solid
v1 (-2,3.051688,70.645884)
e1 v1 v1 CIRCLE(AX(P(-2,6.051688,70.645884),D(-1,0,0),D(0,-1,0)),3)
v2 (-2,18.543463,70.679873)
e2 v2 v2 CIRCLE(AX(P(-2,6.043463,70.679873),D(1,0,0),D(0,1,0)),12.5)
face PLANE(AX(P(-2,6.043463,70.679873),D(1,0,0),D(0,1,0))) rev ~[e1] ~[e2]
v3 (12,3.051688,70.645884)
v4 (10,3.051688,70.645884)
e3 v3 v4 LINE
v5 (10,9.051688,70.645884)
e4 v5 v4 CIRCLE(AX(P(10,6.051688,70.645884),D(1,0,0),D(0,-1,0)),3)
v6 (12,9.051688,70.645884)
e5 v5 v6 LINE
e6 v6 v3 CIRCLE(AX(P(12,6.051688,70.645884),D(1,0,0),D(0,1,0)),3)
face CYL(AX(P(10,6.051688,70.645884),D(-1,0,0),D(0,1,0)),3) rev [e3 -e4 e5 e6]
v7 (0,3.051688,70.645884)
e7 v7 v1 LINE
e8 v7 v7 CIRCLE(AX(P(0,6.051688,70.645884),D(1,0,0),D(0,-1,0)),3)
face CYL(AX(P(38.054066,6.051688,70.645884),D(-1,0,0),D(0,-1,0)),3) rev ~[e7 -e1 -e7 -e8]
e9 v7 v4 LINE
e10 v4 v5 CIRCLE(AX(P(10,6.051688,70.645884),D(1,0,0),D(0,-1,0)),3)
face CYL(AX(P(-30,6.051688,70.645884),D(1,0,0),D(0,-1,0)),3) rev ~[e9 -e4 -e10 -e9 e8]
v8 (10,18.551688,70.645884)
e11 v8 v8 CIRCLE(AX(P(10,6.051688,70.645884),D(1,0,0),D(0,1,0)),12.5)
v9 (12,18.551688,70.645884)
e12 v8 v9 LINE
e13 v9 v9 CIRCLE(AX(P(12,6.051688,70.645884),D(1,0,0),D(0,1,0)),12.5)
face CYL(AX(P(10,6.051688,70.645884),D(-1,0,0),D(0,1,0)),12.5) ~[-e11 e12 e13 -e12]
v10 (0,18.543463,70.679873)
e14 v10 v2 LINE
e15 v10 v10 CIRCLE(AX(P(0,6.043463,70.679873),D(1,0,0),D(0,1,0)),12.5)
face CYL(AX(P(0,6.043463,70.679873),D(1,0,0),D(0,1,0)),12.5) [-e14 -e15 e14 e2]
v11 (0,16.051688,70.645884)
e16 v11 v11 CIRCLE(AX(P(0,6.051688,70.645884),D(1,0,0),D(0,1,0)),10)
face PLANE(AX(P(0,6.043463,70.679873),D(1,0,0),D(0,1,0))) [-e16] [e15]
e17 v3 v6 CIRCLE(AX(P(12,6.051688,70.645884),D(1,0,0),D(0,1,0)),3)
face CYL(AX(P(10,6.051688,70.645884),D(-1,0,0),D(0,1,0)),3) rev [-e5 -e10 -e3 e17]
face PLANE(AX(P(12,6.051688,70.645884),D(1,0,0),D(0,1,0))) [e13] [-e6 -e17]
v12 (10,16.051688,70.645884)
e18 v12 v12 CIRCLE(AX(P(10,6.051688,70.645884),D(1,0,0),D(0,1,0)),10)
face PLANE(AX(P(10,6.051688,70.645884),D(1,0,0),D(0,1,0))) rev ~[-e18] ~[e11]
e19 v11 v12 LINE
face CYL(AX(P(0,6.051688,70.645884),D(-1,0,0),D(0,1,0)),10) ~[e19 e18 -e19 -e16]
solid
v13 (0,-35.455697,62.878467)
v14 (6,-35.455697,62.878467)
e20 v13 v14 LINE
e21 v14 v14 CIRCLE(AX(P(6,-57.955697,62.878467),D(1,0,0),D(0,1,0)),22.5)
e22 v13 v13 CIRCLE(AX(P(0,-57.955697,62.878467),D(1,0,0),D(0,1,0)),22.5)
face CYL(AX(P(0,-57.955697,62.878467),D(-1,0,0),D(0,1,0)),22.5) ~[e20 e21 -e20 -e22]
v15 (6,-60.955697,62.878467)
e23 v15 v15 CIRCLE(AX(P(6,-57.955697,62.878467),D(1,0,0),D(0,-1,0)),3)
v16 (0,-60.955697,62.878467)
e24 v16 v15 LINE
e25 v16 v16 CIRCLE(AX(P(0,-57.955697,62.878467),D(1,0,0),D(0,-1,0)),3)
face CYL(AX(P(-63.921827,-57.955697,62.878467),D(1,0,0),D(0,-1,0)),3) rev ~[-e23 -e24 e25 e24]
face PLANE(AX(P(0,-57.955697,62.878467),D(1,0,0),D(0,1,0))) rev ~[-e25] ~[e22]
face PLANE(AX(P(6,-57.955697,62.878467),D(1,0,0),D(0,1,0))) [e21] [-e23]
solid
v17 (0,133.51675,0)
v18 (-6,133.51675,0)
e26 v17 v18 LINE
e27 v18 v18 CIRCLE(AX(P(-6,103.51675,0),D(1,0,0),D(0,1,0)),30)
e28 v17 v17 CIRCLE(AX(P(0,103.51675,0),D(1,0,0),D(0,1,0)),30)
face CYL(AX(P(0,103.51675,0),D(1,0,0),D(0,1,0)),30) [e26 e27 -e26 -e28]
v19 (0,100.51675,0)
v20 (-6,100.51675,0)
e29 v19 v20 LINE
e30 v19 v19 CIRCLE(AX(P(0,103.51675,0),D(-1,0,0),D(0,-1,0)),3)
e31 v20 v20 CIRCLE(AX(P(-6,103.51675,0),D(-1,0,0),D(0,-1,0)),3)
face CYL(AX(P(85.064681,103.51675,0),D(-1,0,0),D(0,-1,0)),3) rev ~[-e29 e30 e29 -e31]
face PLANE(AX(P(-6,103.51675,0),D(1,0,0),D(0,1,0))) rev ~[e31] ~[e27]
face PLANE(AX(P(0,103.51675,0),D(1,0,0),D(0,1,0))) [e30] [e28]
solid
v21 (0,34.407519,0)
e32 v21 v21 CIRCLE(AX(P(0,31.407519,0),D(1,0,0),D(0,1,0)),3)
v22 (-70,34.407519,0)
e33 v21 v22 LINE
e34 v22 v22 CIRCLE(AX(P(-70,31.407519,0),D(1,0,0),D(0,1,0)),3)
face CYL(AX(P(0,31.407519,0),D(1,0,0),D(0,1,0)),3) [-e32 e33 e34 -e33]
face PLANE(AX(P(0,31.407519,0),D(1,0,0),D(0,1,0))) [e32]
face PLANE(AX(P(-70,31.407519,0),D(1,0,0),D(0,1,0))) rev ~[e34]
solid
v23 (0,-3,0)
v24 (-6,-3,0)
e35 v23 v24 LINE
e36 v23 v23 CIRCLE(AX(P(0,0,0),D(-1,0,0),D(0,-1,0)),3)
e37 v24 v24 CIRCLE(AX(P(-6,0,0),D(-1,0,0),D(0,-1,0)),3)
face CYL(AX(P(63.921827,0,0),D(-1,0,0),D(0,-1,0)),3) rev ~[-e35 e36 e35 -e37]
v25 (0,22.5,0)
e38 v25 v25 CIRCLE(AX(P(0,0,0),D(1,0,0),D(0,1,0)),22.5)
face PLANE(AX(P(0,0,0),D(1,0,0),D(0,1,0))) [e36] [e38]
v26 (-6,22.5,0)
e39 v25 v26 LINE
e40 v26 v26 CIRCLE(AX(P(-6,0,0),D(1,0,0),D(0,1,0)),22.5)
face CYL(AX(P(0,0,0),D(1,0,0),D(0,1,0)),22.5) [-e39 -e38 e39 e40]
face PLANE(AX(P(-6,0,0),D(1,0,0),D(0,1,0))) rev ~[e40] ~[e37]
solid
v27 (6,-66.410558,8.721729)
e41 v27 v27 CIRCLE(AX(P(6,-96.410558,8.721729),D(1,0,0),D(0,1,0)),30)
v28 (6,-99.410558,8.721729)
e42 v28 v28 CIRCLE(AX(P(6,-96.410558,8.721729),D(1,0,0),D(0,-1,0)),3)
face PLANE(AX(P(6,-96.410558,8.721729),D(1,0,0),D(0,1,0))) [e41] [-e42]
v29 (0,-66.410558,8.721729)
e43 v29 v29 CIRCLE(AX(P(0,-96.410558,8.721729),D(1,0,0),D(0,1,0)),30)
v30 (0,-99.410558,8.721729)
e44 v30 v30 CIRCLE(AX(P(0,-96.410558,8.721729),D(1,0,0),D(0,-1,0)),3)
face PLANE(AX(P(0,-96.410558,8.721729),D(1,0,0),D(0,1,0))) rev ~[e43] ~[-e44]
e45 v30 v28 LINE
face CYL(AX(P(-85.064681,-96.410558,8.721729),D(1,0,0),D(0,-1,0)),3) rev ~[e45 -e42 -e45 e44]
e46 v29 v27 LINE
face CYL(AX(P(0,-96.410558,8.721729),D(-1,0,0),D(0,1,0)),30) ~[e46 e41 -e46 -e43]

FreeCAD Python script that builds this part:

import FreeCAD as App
import Part
import Sketcher
from FreeCAD import Vector
Q = App.Units.Quantity

doc = App.newDocument("Part")
body = doc.addObject("PartDesign::Body", "Body")

# Sketch on YZ plane
sketch1 = body.newObject("Sketcher::SketchObject", "Sketch")
sketch1.AttachmentSupport = (doc.getObject("YZ_Plane"), [""])
sketch1.MapMode = "FlatFace"
sketch1.addGeometry(Part.Circle(Vector(0, 0, 0), Vector(0, 0, 1), 22), False)
sketch1.addConstraint(Sketcher.Constraint("Coincident", 0, 3, -1, 1))
sketch1.addConstraint(Sketcher.Constraint("Diameter", 0, Q("45 mm")))
pad1 = body.newObject("PartDesign::Pad", "Pad")
pad1.Profile = sketch1
pad1.Length = 6
pad1.Reversed = True

# Sketch on YZ plane
sketch2 = body.newObject("Sketcher::SketchObject", "Sketch001")
sketch2.AttachmentSupport = (doc.getObject("YZ_Plane"), [""])
sketch2.MapMode = "FlatFace"
sketch2.addGeometry(Part.Circle(Vector(0, 0, 0), Vector(0, 0, 1), 3), False)
sketch2.addConstraint(Sketcher.Constraint("Coincident", 0, 3, -1, 1))
sketch2.addConstraint(Sketcher.Constraint("Diameter", 0, Q("6 mm")))
doc.recompute()
hole = body.newObject("PartDesign::Hole", "Hole")
hole.Profile = sketch2
hole.ThreadType = "None"
hole.Diameter = 6
hole.DepthType = "ThroughAll"
body2 = doc.addObject("PartDesign::Body", "Body001")

# Sketch on YZ plane
sketch3 = body2.newObject("Sketcher::SketchObject", "Sketch002")
sketch3.AttachmentSupport = (doc.getObject("YZ_Plane001"), [""])
sketch3.MapMode = "FlatFace"
sketch3.addGeometry(Part.Circle(Vector(104, 0, 0), Vector(0, 0, 1), 30), False)
sketch3.addConstraint(Sketcher.Constraint("PointOnObject", 0, 3, -1))
sketch3.addConstraint(Sketcher.Constraint("Diameter", 0, Q("60 mm")))
sketch3.addConstraint(Sketcher.Constraint("DistanceX", -1, 1, 0, 3, Q("103.51675 mm")))
pad2 = body2.newObject("PartDesign::Pad", "Pad001")
pad2.Profile = sketch3
pad2.Length = 6
pad2.Reversed = True

# Sketch on YZ plane
sketch4 = body2.newObject("Sketcher::SketchObject", "Sketch003")
sketch4.AttachmentSupport = (doc.getObject("YZ_Plane001"), [""])
sketch4.MapMode = "FlatFace"
sketch4.addGeometry(Part.Circle(Vector(103.5, 0, 0), Vector(0, 0, 1), 3), False)
sketch4.addConstraint(Sketcher.Constraint("PointOnObject", 0, 3, -1))
sketch4.addConstraint(Sketcher.Constraint("Diameter", 0, Q("6 mm")))
sketch4.addConstraint(Sketcher.Constraint("DistanceX", -1, 1, 0, 3, Q("103.51675 mm")))
doc.recompute()
hole2 = body2.newObject("PartDesign::Hole", "Hole001")
hole2.Profile = sketch4
hole2.ThreadType = "None"
hole2.Diameter = 6
hole2.DepthType = "ThroughAll"
body3 = doc.addObject("PartDesign::Body", "Body002")

# Sketch on YZ plane
sketch5 = body3.newObject("Sketcher::SketchObject", "Sketch004")
sketch5.AttachmentSupport = (doc.getObject("YZ_Plane002"), [""])
sketch5.MapMode = "FlatFace"
sketch5.addGeometry(Part.Circle(Vector(31.4, 0, 0), Vector(0, 0, 1), 3), False)
sketch5.addConstraint(Sketcher.Constraint("PointOnObject", 0, 3, -1))
sketch5.addConstraint(Sketcher.Constraint("Diameter", 0, Q("6 mm")))
sketch5.addConstraint(Sketcher.Constraint("DistanceX", -1, 1, 0, 3, Q("31.407519 mm")))
pad3 = body3.newObject("PartDesign::Pad", "Pad002")
pad3.Profile = sketch5
pad3.Length = 70
pad3.Reversed = True
body4 = doc.addObject("PartDesign::Body", "Body003")

# Sketch on YZ plane
sketch6 = body4.newObject("Sketcher::SketchObject", "Sketch005")
sketch6.AttachmentSupport = (doc.getObject("YZ_Plane003"), [""])
sketch6.MapMode = "FlatFace"
sketch6.addGeometry(Part.Circle(Vector(-96, 9, 0), Vector(0, 0, 1), 30), False)
sketch6.addConstraint(Sketcher.Constraint("Diameter", 0, Q("60 mm")))
sketch6.addConstraint(Sketcher.Constraint("DistanceY", -1, 1, 0, 3, Q("8.721729 mm")))
sketch6.addConstraint(Sketcher.Constraint("DistanceX", 0, 3, -1, 1, Q("96.410558 mm")))
pad4 = body4.newObject("PartDesign::Pad", "Pad003")
pad4.Profile = sketch6
pad4.Length = 6

# Sketch on YZ plane
sketch7 = body4.newObject("Sketcher::SketchObject", "Sketch006")
sketch7.AttachmentSupport = (doc.getObject("YZ_Plane003"), [""])
sketch7.MapMode = "FlatFace"
sketch7.addGeometry(Part.Circle(Vector(-96.4, 8.7, 0), Vector(0, 0, 1), 3), False)
sketch7.addConstraint(Sketcher.Constraint("Diameter", 0, Q("6 mm")))
sketch7.addConstraint(Sketcher.Constraint("DistanceY", -1, 1, 0, 3, Q("8.721729 mm")))
sketch7.addConstraint(Sketcher.Constraint("DistanceX", 0, 3, -1, 1, Q("96.410558 mm")))
doc.recompute()
hole3 = body4.newObject("PartDesign::Hole", "Hole002")
hole3.Profile = sketch7
hole3.ThreadType = "None"
hole3.Diameter = 6
hole3.DepthType = "ThroughAll"
hole3.Reversed = True
body5 = doc.addObject("PartDesign::Body", "Body004")

# Sketch on YZ plane
sketch8 = body5.newObject("Sketcher::SketchObject", "Sketch007")
sketch8.AttachmentSupport = (doc.getObject("YZ_Plane004"), [""])
sketch8.MapMode = "FlatFace"
sketch8.addGeometry(Part.Circle(Vector(-58, 63, 0), Vector(0, 0, 1), 22), False)
sketch8.addConstraint(Sketcher.Constraint("Diameter", 0, Q("45 mm")))
sketch8.addConstraint(Sketcher.Constraint("DistanceX", 0, 3, -1, 1, Q("57.955697 mm")))
sketch8.addConstraint(Sketcher.Constraint("DistanceY", -1, 1, 0, 3, Q("62.878467 mm")))
pad5 = body5.newObject("PartDesign::Pad", "Pad004")
pad5.Profile = sketch8
pad5.Length = 6

# Sketch on YZ plane
sketch9 = body5.newObject("Sketcher::SketchObject", "Sketch008")
sketch9.AttachmentSupport = (doc.getObject("YZ_Plane004"), [""])
sketch9.MapMode = "FlatFace"
sketch9.addGeometry(Part.Circle(Vector(-58, 62.9, 0), Vector(0, 0, 1), 3), False)
sketch9.addConstraint(Sketcher.Constraint("Diameter", 0, Q("6 mm")))
sketch9.addConstraint(Sketcher.Constraint("DistanceX", 0, 3, -1, 1, Q("57.955697 mm")))
sketch9.addConstraint(Sketcher.Constraint("DistanceY", -1, 1, 0, 3, Q("62.878467 mm")))
doc.recompute()
hole4 = body5.newObject("PartDesign::Hole", "Hole003")
hole4.Profile = sketch9
hole4.ThreadType = "None"
hole4.Diameter = 6
hole4.DepthType = "ThroughAll"
hole4.Reversed = True
body6 = doc.addObject("PartDesign::Body", "Body005")

# Sketch on YZ plane
sketch10 = body6.newObject("Sketcher::SketchObject", "Sketch009")
sketch10.AttachmentSupport = (doc.getObject("YZ_Plane005"), [""])
sketch10.MapMode = "FlatFace"
sketch10.addGeometry(Part.Circle(Vector(6, 71, 0), Vector(0, 0, 1), 10), False)
sketch10.addConstraint(Sketcher.Constraint("Diameter", 0, Q("20 mm")))
sketch10.addConstraint(Sketcher.Constraint("DistanceX", -1, 1, 0, 3, Q("6.051688 mm")))
sketch10.addConstraint(Sketcher.Constraint("DistanceY", -1, 1, 0, 3, Q("70.645884 mm")))
pad6 = body6.newObject("PartDesign::Pad", "Pad005")
pad6.Profile = sketch10
pad6.Length = 10

# Sketch on YZ plane
sketch11 = body6.newObject("Sketcher::SketchObject", "Sketch010")
sketch11.AttachmentSupport = (doc.getObject("YZ_Plane005"), [""])
sketch11.MapMode = "FlatFace"
sketch11.addGeometry(Part.Circle(Vector(6.1, 70.6, 0), Vector(0, 0, 1), 3), False)
sketch11.addConstraint(Sketcher.Constraint("Diameter", 0, Q("6 mm")))
sketch11.addConstraint(Sketcher.Constraint("DistanceX", -1, 1, 0, 3, Q("6.051688 mm")))
sketch11.addConstraint(Sketcher.Constraint("DistanceY", -1, 1, 0, 3, Q("70.645884 mm")))
doc.recompute()
hole5 = body6.newObject("PartDesign::Hole", "Hole004")
hole5.Profile = sketch11
hole5.ThreadType = "None"
hole5.Diameter = 6
hole5.DepthType = "ThroughAll"
hole5.Reversed = True
body7 = doc.addObject("PartDesign::Body", "Body006")

# Sketch on YZ plane
sketch12 = body7.newObject("Sketcher::SketchObject", "Sketch011")
sketch12.AttachmentSupport = (doc.getObject("YZ_Plane006"), [""])
sketch12.MapMode = "FlatFace"
sketch12.AttachmentOffset = App.Placement(Vector(0, 0, 10), App.Rotation())
sketch12.addGeometry(Part.Circle(Vector(6.1, 70.6, 0), Vector(0, 0, 1), 12.5), False)
sketch12.addGeometry(Part.Circle(Vector(6.1, 70.6, 0), Vector(0, 0, 1), 3), False)
sketch12.addConstraint(Sketcher.Constraint("Coincident", 1, 3, 0, 3))
sketch12.addConstraint(Sketcher.Constraint("Diameter", 0, Q("25 mm")))
sketch12.addConstraint(Sketcher.Constraint("Diameter", 1, Q("6 mm")))
sketch12.addConstraint(Sketcher.Constraint("DistanceX", -1, 1, 0, 3, Q("6.051688 mm")))
sketch12.addConstraint(Sketcher.Constraint("DistanceY", -1, 1, 0, 3, Q("70.645884 mm")))
pad7 = body7.newObject("PartDesign::Pad", "Pad006")
pad7.Profile = sketch12
pad7.Length = 2
doc.recompute()

boolean = body6.newObject("PartDesign::Boolean", "Boolean")
boolean.Type = "Fuse"
boolean.addObjects([body7])

# Sketch on YZ plane
sketch13 = body6.newObject("Sketcher::SketchObject", "Sketch012")
sketch13.AttachmentSupport = (doc.getObject("YZ_Plane005"), [""])
sketch13.MapMode = "FlatFace"
sketch13.addGeometry(Part.Circle(Vector(6, 71, 0), Vector(0, 0, 1), 12), False)
sketch13.addConstraint(Sketcher.Constraint("Diameter", 0, Q("25 mm")))
sketch13.addConstraint(Sketcher.Constraint("DistanceX", -1, 1, 0, 3, Q("6.043463 mm")))
sketch13.addConstraint(Sketcher.Constraint("DistanceY", -1, 1, 0, 3, Q("70.679873 mm")))
pad8 = body6.newObject("PartDesign::Pad", "Pad007")
pad8.Profile = sketch13
pad8.Length = 2
pad8.Reversed = True

# Sketch on YZ plane
sketch14 = body6.newObject("Sketcher::SketchObject", "Sketch013")
sketch14.AttachmentSupport = (doc.getObject("YZ_Plane005"), [""])
sketch14.MapMode = "FlatFace"
sketch14.addGeometry(Part.Circle(Vector(6.1, 70.6, 0), Vector(0, 0, 1), 3), False)
sketch14.addConstraint(Sketcher.Constraint("Diameter", 0, Q("6 mm")))
sketch14.addConstraint(Sketcher.Constraint("DistanceX", -1, 1, 0, 3, Q("6.051688 mm")))
sketch14.addConstraint(Sketcher.Constraint("DistanceY", -1, 1, 0, 3, Q("70.645884 mm")))
doc.recompute()
hole6 = body6.newObject("PartDesign::Hole", "Hole005")
hole6.Profile = sketch14
hole6.ThreadType = "None"
hole6.Diameter = 6
hole6.DepthType = "ThroughAll"

doc.recompute()
